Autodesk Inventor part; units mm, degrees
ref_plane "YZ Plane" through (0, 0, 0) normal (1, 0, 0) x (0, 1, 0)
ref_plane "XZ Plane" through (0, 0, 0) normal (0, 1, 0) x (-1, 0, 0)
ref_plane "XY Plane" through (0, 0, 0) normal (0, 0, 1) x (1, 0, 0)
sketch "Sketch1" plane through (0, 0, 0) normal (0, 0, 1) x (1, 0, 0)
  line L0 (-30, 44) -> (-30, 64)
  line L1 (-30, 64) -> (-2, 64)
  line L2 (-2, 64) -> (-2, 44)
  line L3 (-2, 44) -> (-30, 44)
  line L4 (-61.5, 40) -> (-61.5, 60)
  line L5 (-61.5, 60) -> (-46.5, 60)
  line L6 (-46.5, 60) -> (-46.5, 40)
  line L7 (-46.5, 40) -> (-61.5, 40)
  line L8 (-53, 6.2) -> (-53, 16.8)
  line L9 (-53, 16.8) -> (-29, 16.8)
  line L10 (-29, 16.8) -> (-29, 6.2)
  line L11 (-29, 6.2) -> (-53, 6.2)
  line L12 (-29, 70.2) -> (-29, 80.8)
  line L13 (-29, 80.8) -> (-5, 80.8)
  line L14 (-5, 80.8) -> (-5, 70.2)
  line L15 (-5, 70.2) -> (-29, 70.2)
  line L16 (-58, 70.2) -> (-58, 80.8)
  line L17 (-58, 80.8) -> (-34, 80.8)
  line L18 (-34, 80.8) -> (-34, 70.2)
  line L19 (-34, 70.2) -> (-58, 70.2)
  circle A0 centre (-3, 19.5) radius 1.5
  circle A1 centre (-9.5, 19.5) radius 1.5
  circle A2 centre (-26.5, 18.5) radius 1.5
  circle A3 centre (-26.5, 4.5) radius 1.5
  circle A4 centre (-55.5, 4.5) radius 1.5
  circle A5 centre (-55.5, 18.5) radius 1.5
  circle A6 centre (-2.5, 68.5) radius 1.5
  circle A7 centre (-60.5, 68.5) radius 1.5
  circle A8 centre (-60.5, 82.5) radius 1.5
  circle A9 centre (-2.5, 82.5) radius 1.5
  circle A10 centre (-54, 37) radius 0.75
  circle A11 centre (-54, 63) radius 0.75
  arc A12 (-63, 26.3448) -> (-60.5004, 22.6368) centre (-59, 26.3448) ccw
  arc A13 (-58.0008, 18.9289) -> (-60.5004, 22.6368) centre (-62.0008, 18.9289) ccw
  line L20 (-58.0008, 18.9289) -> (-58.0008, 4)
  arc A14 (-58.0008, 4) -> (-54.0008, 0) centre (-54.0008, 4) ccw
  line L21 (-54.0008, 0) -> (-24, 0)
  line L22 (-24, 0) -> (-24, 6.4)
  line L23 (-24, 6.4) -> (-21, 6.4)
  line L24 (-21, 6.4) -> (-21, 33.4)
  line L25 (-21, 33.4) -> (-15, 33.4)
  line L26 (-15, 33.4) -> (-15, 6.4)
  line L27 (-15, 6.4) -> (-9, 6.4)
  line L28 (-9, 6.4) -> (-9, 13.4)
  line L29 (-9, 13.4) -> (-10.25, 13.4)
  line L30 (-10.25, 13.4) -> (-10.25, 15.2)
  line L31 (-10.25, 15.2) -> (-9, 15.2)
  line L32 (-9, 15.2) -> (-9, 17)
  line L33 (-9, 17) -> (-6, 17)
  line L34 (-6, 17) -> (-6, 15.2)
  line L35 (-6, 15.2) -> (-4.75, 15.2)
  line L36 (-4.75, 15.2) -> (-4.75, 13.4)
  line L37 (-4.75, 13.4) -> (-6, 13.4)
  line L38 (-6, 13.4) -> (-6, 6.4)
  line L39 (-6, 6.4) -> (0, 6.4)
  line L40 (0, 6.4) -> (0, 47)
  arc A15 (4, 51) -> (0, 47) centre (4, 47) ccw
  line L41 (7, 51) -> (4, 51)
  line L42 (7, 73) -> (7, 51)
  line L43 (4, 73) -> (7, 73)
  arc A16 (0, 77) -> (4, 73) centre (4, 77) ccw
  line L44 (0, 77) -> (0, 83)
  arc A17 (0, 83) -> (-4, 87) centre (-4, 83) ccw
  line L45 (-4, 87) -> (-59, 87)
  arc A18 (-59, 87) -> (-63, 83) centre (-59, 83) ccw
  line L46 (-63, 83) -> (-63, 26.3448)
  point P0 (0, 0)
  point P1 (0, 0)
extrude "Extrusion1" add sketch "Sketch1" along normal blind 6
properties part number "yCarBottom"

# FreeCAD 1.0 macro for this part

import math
import FreeCAD as App
import Part
import Sketcher

V = App.Vector

doc = App.newDocument("Part")
params = doc.addObject("Spreadsheet::Sheet", "Params")
for row, (alias, value) in enumerate([
    ("sketch1_diameter", "3 mm"),
    ("sketch1_radius", "4 mm"),
    ("sketch1_diameter2", "1.5 mm"),
    ("sketch1_width", "3 mm"),
    ("sketch1_width2", "6 mm"),
    ("pad1_length", "6 mm"),
], start=1):
    params.set(f"A{row}", alias)
    params.set(f"B{row}", "=" + value)
    params.setAlias(f"B{row}", alias)

body = doc.addObject("PartDesign::Body", "Body")

# Sketch on XY plane
sketch1 = body.newObject("Sketcher::SketchObject", "Sketch")
sketch1.AttachmentSupport = (doc.getObject("XY_Plane"), [""])
sketch1.MapMode = "FlatFace"
sketch1.addGeometry([
    Part.LineSegment(V(-63, 83, 0), V(-63, 26.3448, 0)),  # 0
    Part.ArcOfCircle(Part.Circle(V(-59, 26.3448, 0), V(0, 0, 1), 4), math.radians(180), math.radians(247.969843)),  # 1
    Part.ArcOfCircle(Part.Circle(V(-62.0008, 18.9289, 0), V(0, 0, 1), 4), math.radians(0), math.radians(67.969305)),  # 2
    Part.LineSegment(V(-58.0008, 18.9289, 0), V(-58.0008, 4, 0)),  # 3
    Part.ArcOfCircle(Part.Circle(V(-54.0008, 4, 0), V(0, 0, 1), 4), math.radians(180), math.radians(270)),  # 4
    Part.LineSegment(V(-54.0008, 0, 0), V(-24, 0, 0)),  # 5
    Part.LineSegment(V(-24, 0, 0), V(-24, 6.4, 0)),  # 6
    Part.LineSegment(V(-24, 6.4, 0), V(-21, 6.4, 0)),  # 7
    Part.LineSegment(V(-21, 6.4, 0), V(-21, 33.4, 0)),  # 8
    Part.LineSegment(V(-21, 33.4, 0), V(-15, 33.4, 0)),  # 9
    Part.LineSegment(V(-15, 33.4, 0), V(-15, 6.4, 0)),  # 10
    Part.LineSegment(V(-15, 6.4, 0), V(-9, 6.4, 0)),  # 11
    Part.LineSegment(V(-9, 6.4, 0), V(-9, 13.4, 0)),  # 12
    Part.LineSegment(V(-9, 13.4, 0), V(-10.25, 13.4, 0)),  # 13
    Part.LineSegment(V(-10.25, 13.4, 0), V(-10.25, 15.2, 0)),  # 14
    Part.LineSegment(V(-10.25, 15.2, 0), V(-9, 15.2, 0)),  # 15
    Part.LineSegment(V(-9, 15.2, 0), V(-9, 17, 0)),  # 16
    Part.LineSegment(V(-9, 17, 0), V(-6, 17, 0)),  # 17
    Part.LineSegment(V(-6, 17, 0), V(-6, 15.2, 0)),  # 18
    Part.LineSegment(V(-6, 15.2, 0), V(-4.75, 15.2, 0)),  # 19
    Part.LineSegment(V(-4.75, 15.2, 0), V(-4.75, 13.4, 0)),  # 20
    Part.LineSegment(V(-4.75, 13.4, 0), V(-6, 13.4, 0)),  # 21
    Part.LineSegment(V(-6, 13.4, 0), V(-6, 6.4, 0)),  # 22
    Part.LineSegment(V(-6, 6.4, 0), V(0, 6.4, 0)),  # 23
    Part.LineSegment(V(0, 6.4, 0), V(0, 47, 0)),  # 24
    Part.ArcOfCircle(Part.Circle(V(4, 47, 0), V(0, 0, 1), 4), math.radians(90), math.radians(180)),  # 25
    Part.LineSegment(V(4, 51, 0), V(7, 51, 0)),  # 26
    Part.LineSegment(V(7, 51, 0), V(7, 73, 0)),  # 27
    Part.LineSegment(V(7, 73, 0), V(4, 73, 0)),  # 28
    Part.ArcOfCircle(Part.Circle(V(4, 77, 0), V(0, 0, 1), 4), math.radians(180), math.radians(270)),  # 29
    Part.LineSegment(V(0, 77, 0), V(0, 83, 0)),  # 30
    Part.ArcOfCircle(Part.Circle(V(-4, 83, 0), V(0, 0, 1), 4), math.radians(0), math.radians(90)),  # 31
    Part.LineSegment(V(-4, 87, 0), V(-59, 87, 0)),  # 32
    Part.ArcOfCircle(Part.Circle(V(-59, 83, 0), V(0, 0, 1), 4), math.radians(90), math.radians(180)),  # 33
    Part.Circle(V(-55.5, 4.5, 0), V(0, 0, 1), 1.5),  # 34
    Part.Circle(V(-55.5, 18.5, 0), V(0, 0, 1), 1.5),  # 35
    Part.LineSegment(V(-29, 6.2, 0), V(-53, 6.2, 0)),  # 36
    Part.LineSegment(V(-53, 6.2, 0), V(-53, 16.8, 0)),  # 37
    Part.LineSegment(V(-53, 16.8, 0), V(-29, 16.8, 0)),  # 38
    Part.LineSegment(V(-29, 16.8, 0), V(-29, 6.2, 0)),  # 39
    Part.Circle(V(-54, 37, 0), V(0, 0, 1), 0.75),  # 40
    Part.Circle(V(-26.5, 4.5, 0), V(0, 0, 1), 1.5),  # 41
    Part.Circle(V(-26.5, 18.5, 0), V(0, 0, 1), 1.5),  # 42
    Part.Circle(V(-9.5, 19.5, 0), V(0, 0, 1), 1.5),  # 43
    Part.Circle(V(-3, 19.5, 0), V(0, 0, 1), 1.5),  # 44
    Part.LineSegment(V(-46.5, 40, 0), V(-61.5, 40, 0)),  # 45
    Part.LineSegment(V(-61.5, 40, 0), V(-61.5, 60, 0)),  # 46
    Part.LineSegment(V(-61.5, 60, 0), V(-46.5, 60, 0)),  # 47
    Part.LineSegment(V(-46.5, 60, 0), V(-46.5, 40, 0)),  # 48
    Part.Circle(V(-54, 63, 0), V(0, 0, 1), 0.75),  # 49
    Part.Circle(V(-60.5, 68.5, 0), V(0, 0, 1), 1.5),  # 50
    Part.LineSegment(V(-34, 70.2, 0), V(-58, 70.2, 0)),  # 51
    Part.LineSegment(V(-58, 70.2, 0), V(-58, 80.8, 0)),  # 52
    Part.LineSegment(V(-58, 80.8, 0), V(-34, 80.8, 0)),  # 53
    Part.LineSegment(V(-34, 80.8, 0), V(-34, 70.2, 0)),  # 54
    Part.Circle(V(-60.5, 82.5, 0), V(0, 0, 1), 1.5),  # 55
    Part.LineSegment(V(-2, 44, 0), V(-30, 44, 0)),  # 56
    Part.LineSegment(V(-30, 44, 0), V(-30, 64, 0)),  # 57
    Part.LineSegment(V(-30, 64, 0), V(-2, 64, 0)),  # 58
    Part.LineSegment(V(-2, 64, 0), V(-2, 44, 0)),  # 59
    Part.LineSegment(V(-5, 70.2, 0), V(-29, 70.2, 0)),  # 60
    Part.LineSegment(V(-29, 70.2, 0), V(-29, 80.8, 0)),  # 61
    Part.LineSegment(V(-29, 80.8, 0), V(-5, 80.8, 0)),  # 62
    Part.LineSegment(V(-5, 80.8, 0), V(-5, 70.2, 0)),  # 63
    Part.Circle(V(-2.5, 68.5, 0), V(0, 0, 1), 1.5),  # 64
    Part.Circle(V(-2.5, 82.5, 0), V(0, 0, 1), 1.5),  # 65
], False)
sketch1.addConstraint([
    Sketcher.Constraint("Tangent", 0, 2, 1, 1),
    Sketcher.Constraint("Tangent", 1, 2, 2, 2),
    Sketcher.Constraint("Tangent", 2, 1, 3, 1),
    Sketcher.Constraint("Tangent", 3, 2, 4, 1),
    Sketcher.Constraint("Tangent", 4, 2, 5, 1),
    Sketcher.Constraint("Coincident", 5, 2, 6, 1),
    Sketcher.Constraint("Coincident", 6, 2, 7, 1),
    Sketcher.Constraint("Coincident", 7, 2, 8, 1),
    Sketcher.Constraint("Coincident", 8, 2, 9, 1),
    Sketcher.Constraint("Coincident", 9, 2, 10, 1),
    Sketcher.Constraint("Coincident", 10, 2, 11, 1),
    Sketcher.Constraint("Coincident", 11, 2, 12, 1),
    Sketcher.Constraint("Coincident", 12, 2, 13, 1),
    Sketcher.Constraint("Coincident", 13, 2, 14, 1),
    Sketcher.Constraint("Coincident", 14, 2, 15, 1),
    Sketcher.Constraint("Coincident", 15, 2, 16, 1),
    Sketcher.Constraint("Coincident", 16, 2, 17, 1),
    Sketcher.Constraint("Coincident", 17, 2, 18, 1),
    Sketcher.Constraint("Coincident", 18, 2, 19, 1),
    Sketcher.Constraint("Coincident", 19, 2, 20, 1),
    Sketcher.Constraint("Coincident", 20, 2, 21, 1),
    Sketcher.Constraint("Coincident", 21, 2, 22, 1),
    Sketcher.Constraint("Coincident", 22, 2, 23, 1),
    Sketcher.Constraint("Coincident", 23, 2, 24, 1),
    Sketcher.Constraint("Tangent", 24, 2, 25, 2),
    Sketcher.Constraint("Tangent", 25, 1, 26, 1),
    Sketcher.Constraint("Coincident", 26, 2, 27, 1),
    Sketcher.Constraint("Coincident", 27, 2, 28, 1),
    Sketcher.Constraint("Tangent", 28, 2, 29, 2),
    Sketcher.Constraint("Tangent", 29, 1, 30, 1),
    Sketcher.Constraint("Tangent", 30, 2, 31, 1),
    Sketcher.Constraint("Tangent", 31, 2, 32, 1),
    Sketcher.Constraint("Tangent", 32, 2, 33, 1),
    Sketcher.Constraint("Tangent", 33, 2, 0, 1),
    Sketcher.Constraint("Coincident", 36, 2, 37, 1),
    Sketcher.Constraint("Coincident", 37, 2, 38, 1),
    Sketcher.Constraint("Coincident", 38, 2, 39, 1),
    Sketcher.Constraint("Coincident", 39, 2, 36, 1),
    Sketcher.Constraint("Coincident", 45, 2, 46, 1),
    Sketcher.Constraint("Coincident", 46, 2, 47, 1),
    Sketcher.Constraint("Coincident", 47, 2, 48, 1),
    Sketcher.Constraint("Coincident", 48, 2, 45, 1),
    Sketcher.Constraint("Coincident", 51, 2, 52, 1),
    Sketcher.Constraint("Coincident", 52, 2, 53, 1),
    Sketcher.Constraint("Coincident", 53, 2, 54, 1),
    Sketcher.Constraint("Coincident", 54, 2, 51, 1),
    Sketcher.Constraint("Coincident", 56, 2, 57, 1),
    Sketcher.Constraint("Coincident", 57, 2, 58, 1),
    Sketcher.Constraint("Coincident", 58, 2, 59, 1),
    Sketcher.Constraint("Coincident", 59, 2, 56, 1),
    Sketcher.Constraint("Coincident", 60, 2, 61, 1),
    Sketcher.Constraint("Coincident", 61, 2, 62, 1),
    Sketcher.Constraint("Coincident", 62, 2, 63, 1),
    Sketcher.Constraint("Coincident", 63, 2, 60, 1),
    Sketcher.Constraint("Vertical", 0),
    Sketcher.Constraint("Vertical", 3),
    Sketcher.Constraint("Horizontal", 5),
    Sketcher.Constraint("Vertical", 6),
    Sketcher.Constraint("Horizontal", 7),
    Sketcher.Constraint("Vertical", 8),
    Sketcher.Constraint("Horizontal", 9),
    Sketcher.Constraint("Vertical", 10),
    Sketcher.Constraint("Horizontal", 11),
    Sketcher.Constraint("Vertical", 12),
    Sketcher.Constraint("Horizontal", 13),
    Sketcher.Constraint("Vertical", 14),
    Sketcher.Constraint("Horizontal", 15),
    Sketcher.Constraint("Vertical", 16),
    Sketcher.Constraint("Horizontal", 17),
    Sketcher.Constraint("Vertical", 18),
    Sketcher.Constraint("Horizontal", 19),
    Sketcher.Constraint("Vertical", 20),
    Sketcher.Constraint("Horizontal", 21),
    Sketcher.Constraint("Vertical", 22),
    Sketcher.Constraint("Horizontal", 23),
    Sketcher.Constraint("Vertical", 24),
    Sketcher.Constraint("Horizontal", 26),
    Sketcher.Constraint("Vertical", 27),
    Sketcher.Constraint("Horizontal", 28),
    Sketcher.Constraint("Vertical", 30),
    Sketcher.Constraint("Horizontal", 32),
    Sketcher.Constraint("Horizontal", 36),
    Sketcher.Constraint("Vertical", 37),
    Sketcher.Constraint("Horizontal", 38),
    Sketcher.Constraint("Vertical", 39),
    Sketcher.Constraint("Horizontal", 45),
    Sketcher.Constraint("Vertical", 46),
    Sketcher.Constraint("Horizontal", 47),
    Sketcher.Constraint("Vertical", 48),
    Sketcher.Constraint("Horizontal", 51),
    Sketcher.Constraint("Vertical", 52),
    Sketcher.Constraint("Horizontal", 53),
    Sketcher.Constraint("Vertical", 54),
    Sketcher.Constraint("Horizontal", 56),
    Sketcher.Constraint("Vertical", 57),
    Sketcher.Constraint("Horizontal", 58),
    Sketcher.Constraint("Vertical", 59),
    Sketcher.Constraint("Horizontal", 60),
    Sketcher.Constraint("Vertical", 61),
    Sketcher.Constraint("Horizontal", 62),
    Sketcher.Constraint("Vertical", 63),
    Sketcher.Constraint("Equal", 1, 2),
    Sketcher.Constraint("Equal", 2, 4),
    Sketcher.Constraint("Equal", 4, 25),
    Sketcher.Constraint("Equal", 25, 29),
    Sketcher.Constraint("Equal", 29, 31),
    Sketcher.Constraint("Equal", 31, 33),
    Sketcher.Constraint("Equal", 34, 35),
    Sketcher.Constraint("Equal", 35, 41),
    Sketcher.Constraint("Equal", 41, 42),
    Sketcher.Constraint("Equal", 42, 43),
    Sketcher.Constraint("Equal", 43, 44),
    Sketcher.Constraint("Equal", 40, 49),
    Sketcher.Constraint("Equal", 44, 50),
    Sketcher.Constraint("Equal", 50, 55),
    Sketcher.Constraint("Equal", 55, 64),
    Sketcher.Constraint("Equal", 64, 65),
    Sketcher.Constraint("PointOnObject", 4, 2, -1),
    Sketcher.Constraint("PointOnObject", 23, 2, -2),
    Sketcher.Constraint("PointOnObject", 29, 1, -2),
    Sketcher.Constraint("Horizontal", 34, 3, 41, 3),
    Sketcher.Constraint("Horizontal", 35, 3, 42, 3),
    Sketcher.Constraint("Horizontal", 43, 3, 44, 3),
    Sketcher.Constraint("Horizontal", 50, 3, 64, 3),
    Sketcher.Constraint("Horizontal", 55, 3, 65, 3),
    Sketcher.Constraint("Horizontal", 7, 2, 10, 2),
    Sketcher.Constraint("Horizontal", 15, 2, 18, 2),
    Sketcher.Constraint("Horizontal", 13, 2, 20, 2),
    Sketcher.Constraint("Horizontal", 11, 2, 22, 2),
    Sketcher.Constraint("Horizontal", 54, 2, 60, 2),
    Sketcher.Constraint("Horizontal", 53, 2, 61, 2),
    Sketcher.Constraint("Vertical", 34, 3, 35, 3),
    Sketcher.Constraint("Vertical", 41, 3, 42, 3),
    Sketcher.Constraint("Vertical", 40, 3, 49, 3),
    Sketcher.Constraint("Vertical", 50, 3, 55, 3),
    Sketcher.Constraint("Vertical", 64, 3, 65, 3),
    Sketcher.Constraint("Vertical", 12, 2, 15, 2),
    Sketcher.Constraint("Vertical", 18, 2, 21, 2),
    Sketcher.Constraint("Vertical", 39, 2, 60, 2),
    Sketcher.Constraint("Equal", 9, 11),
    Sketcher.Constraint("Equal", 7, 17),
    Sketcher.Constraint("Equal", 15, 19),
    Sketcher.Constraint("Equal", 11, 23),
    Sketcher.Constraint("Equal", 17, 26),
    Sketcher.Constraint("Equal", 38, 51),
    Sketcher.Constraint("Equal", 53, 60),
    Sketcher.Constraint("Equal", 14, 16),
    Sketcher.Constraint("Equal", 23, 30),
    Sketcher.Constraint("Equal", 39, 52),
    Sketcher.Constraint("Equal", 48, 57),
    Sketcher.Constraint("Diameter", 34, 3.0),
    Sketcher.Constraint("Radius", 1, 4.0),
    Sketcher.Constraint("Diameter", 40, 1.5),
    Sketcher.Constraint("DistanceX", 7, 1, 7, 2, 3.0),
    Sketcher.Constraint("DistanceX", 9, 1, 9, 2, 6.0),
    Sketcher.Constraint("DistanceX", 32, 2, 32, 1, 55.0),
    Sketcher.Constraint("DistanceX", 36, 2, 36, 1, 24.0),
    Sketcher.Constraint("DistanceX", 45, 2, 45, 1, 15.0),
    Sketcher.Constraint("DistanceX", 56, 2, 56, 1, 28.0),
    Sketcher.Constraint("DistanceY", 8, 1, 8, 2, 27.0),
    Sketcher.Constraint("DistanceY", 12, 1, 12, 2, 7.0),
    Sketcher.Constraint("DistanceY", 27, 1, 27, 2, 22.0),
    Sketcher.Constraint("DistanceY", 46, 1, 46, 2, 20.0),
    Sketcher.Constraint("DistanceY", 6, 1, 6, 2, 6.4),
    Sketcher.Constraint("DistanceY", 14, 1, 14, 2, 1.8),
    Sketcher.Constraint("DistanceY", 24, 1, 24, 2, 40.6),
    Sketcher.Constraint("DistanceY", 37, 1, 37, 2, 10.6),
    Sketcher.Constraint("DistanceX", 40, 3, -1, 1, 54.0),
    Sketcher.Constraint("DistanceY", -1, 1, 40, 3, 37.0),
    Sketcher.Constraint("DistanceX", 44, 3, -1, 1, 3.0),
    Sketcher.Constraint("DistanceY", -1, 1, 49, 3, 63.0),
    Sketcher.Constraint("DistanceX", 36, 2, -1, 1, 53.0),
    Sketcher.Constraint("DistanceY", -1, 1, 45, 2, 40.0),
    Sketcher.Constraint("DistanceX", 51, 2, -1, 1, 58.0),
    Sketcher.Constraint("DistanceX", 56, 2, -1, 1, 30.0),
    Sketcher.Constraint("DistanceY", -1, 1, 56, 2, 44.0),
    Sketcher.Constraint("DistanceX", 13, 2, 13, 1, 1.25),
    Sketcher.Constraint("DistanceX", 34, 3, -1, 1, 55.5),
    Sketcher.Constraint("DistanceY", -1, 1, 34, 3, 4.5),
    Sketcher.Constraint("DistanceY", -1, 1, 35, 3, 18.5),
    Sketcher.Constraint("DistanceX", 41, 3, -1, 1, 26.5),
    Sketcher.Constraint("DistanceX", 43, 3, -1, 1, 9.5),
    Sketcher.Constraint("DistanceY", -1, 1, 43, 3, 19.5),
    Sketcher.Constraint("DistanceX", 50, 3, -1, 1, 60.5),
    Sketcher.Constraint("DistanceY", -1, 1, 50, 3, 68.5),
    Sketcher.Constraint("DistanceY", -1, 1, 55, 3, 82.5),
    Sketcher.Constraint("DistanceX", 64, 3, -1, 1, 2.5),
    Sketcher.Constraint("DistanceY", -1, 1, 36, 2, 6.2),
    Sketcher.Constraint("DistanceX", 45, 2, -1, 1, 61.5),
    Sketcher.Constraint("DistanceY", -1, 1, 51, 2, 70.2),
    Sketcher.Constraint("DistanceY", 3, 2, 3, 1, 14.929),
    Sketcher.Constraint("DistanceX", 5, 1, 5, 2, 30.0008),
])
sketch1.setExpression("Constraints[150]", "Params.sketch1_diameter")
sketch1.setExpression("Constraints[151]", "Params.sketch1_radius")
sketch1.setExpression("Constraints[152]", "Params.sketch1_diameter2")
sketch1.setExpression("Constraints[153]", "Params.sketch1_width")
sketch1.setExpression("Constraints[154]", "Params.sketch1_width2")
pad1 = body.newObject("PartDesign::Pad", "Pad")
pad1.Profile = sketch1
pad1.setExpression("Length", "Params.pad1_length")

doc.recompute()
